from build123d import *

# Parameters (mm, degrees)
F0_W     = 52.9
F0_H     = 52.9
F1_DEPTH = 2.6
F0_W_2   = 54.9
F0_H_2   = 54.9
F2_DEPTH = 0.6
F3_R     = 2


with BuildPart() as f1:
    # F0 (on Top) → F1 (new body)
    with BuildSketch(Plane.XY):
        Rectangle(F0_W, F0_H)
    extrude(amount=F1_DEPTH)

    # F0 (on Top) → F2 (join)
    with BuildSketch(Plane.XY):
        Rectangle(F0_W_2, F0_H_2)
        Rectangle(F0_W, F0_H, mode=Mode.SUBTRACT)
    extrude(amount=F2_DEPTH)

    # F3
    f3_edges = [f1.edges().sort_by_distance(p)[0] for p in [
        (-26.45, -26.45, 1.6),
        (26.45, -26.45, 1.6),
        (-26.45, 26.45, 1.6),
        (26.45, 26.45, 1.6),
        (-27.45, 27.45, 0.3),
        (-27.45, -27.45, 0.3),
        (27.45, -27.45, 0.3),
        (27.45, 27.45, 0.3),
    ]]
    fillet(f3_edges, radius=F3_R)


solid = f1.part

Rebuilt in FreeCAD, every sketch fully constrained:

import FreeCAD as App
import Part
import Sketcher
from FreeCAD import Vector
Q = App.Units.Quantity


def edges_at(feature, points):
    """Names of the edges that pass closest to the given points."""
    edges = feature.Shape.Edges
    near = lambda p: min(range(len(edges)), key=lambda i: edges[i].distToShape(Part.Vertex(*p))[0])
    return sorted({f"Edge{near(p) + 1}" for p in points})


def add_polygon(sketch, points):
    """Adds a closed chain of lines whose ends are joined by coincident constraints."""
    first, n = sketch.GeometryCount, len(points)
    for a, b in zip(points, points[1:] + points[:1]):
        sketch.addGeometry(Part.LineSegment(App.Vector(*a, 0), App.Vector(*b, 0)), False)
    for i in range(n):
        sketch.addConstraint(Sketcher.Constraint("Coincident", first + i, 2, first + (i + 1) % n, 1))

doc = App.newDocument("Part")
body = doc.addObject("PartDesign::Body", "Body")

# Sketch on XY plane
sketch1 = body.newObject("Sketcher::SketchObject", "Sketch")
sketch1.AttachmentSupport = (doc.getObject("XY_Plane"), [""])
sketch1.MapMode = "FlatFace"
add_polygon(sketch1, [(-26.45, 26.45), (-26.45, -26.45), (26.45, -26.45), (26.45, 26.45)])  # lines 0-3
sketch1.addConstraint([
    Sketcher.Constraint("Vertical", 0),
    Sketcher.Constraint("Horizontal", 1),
    Sketcher.Constraint("Vertical", 2),
    Sketcher.Constraint("Horizontal", 3),
    Sketcher.Constraint("Symmetric", 0, 2, 2, 2, -1, 1),
    Sketcher.Constraint("Equal", 3, 0),
    Sketcher.Constraint("DistanceX", 1, 1, 1, 2, Q("52.9 mm")),
])
pad1 = body.newObject("PartDesign::Pad", "Pad")
pad1.Profile = sketch1
pad1.Length = 2.6

# Sketch on XY plane
sketch2 = body.newObject("Sketcher::SketchObject", "Sketch001")
sketch2.AttachmentSupport = (doc.getObject("XY_Plane"), [""])
sketch2.MapMode = "FlatFace"
add_polygon(sketch2, [(-27.45, 27.45), (-27.45, -27.45), (27.45, -27.45), (27.45, 27.45)])  # lines 0-3
add_polygon(sketch2, [(26.45, -26.45), (-26.45, -26.45), (-26.45, 26.45), (26.45, 26.45)])  # lines 4-7
sketch2.addConstraint([
    Sketcher.Constraint("Vertical", 0),
    Sketcher.Constraint("Horizontal", 1),
    Sketcher.Constraint("Vertical", 2),
    Sketcher.Constraint("Horizontal", 3),
    Sketcher.Constraint("Horizontal", 4),
    Sketcher.Constraint("Vertical", 5),
    Sketcher.Constraint("Horizontal", 6),
    Sketcher.Constraint("Vertical", 7),
    Sketcher.Constraint("Symmetric", 0, 2, 2, 2, -1, 1),
    Sketcher.Constraint("Symmetric", 4, 2, 6, 2, -1, 1),
    Sketcher.Constraint("Equal", 3, 0),
    Sketcher.Constraint("Equal", 6, 5),
    Sketcher.Constraint("DistanceX", 1, 1, 1, 2, Q("54.9 mm")),
    Sketcher.Constraint("DistanceX", 4, 2, 4, 1, Q("52.9 mm")),
])
pad2 = body.newObject("PartDesign::Pad", "Pad001")
pad2.Profile = sketch2
pad2.Length = 0.6
doc.recompute()

fillet = body.newObject("PartDesign::Fillet", "Fillet")
fillet.Base = (pad2, edges_at(pad2, [
    (-26.45, -26.45, 1.6),
    (26.45, -26.45, 1.6),
    (-26.45, 26.45, 1.6),
    (26.45, 26.45, 1.6),
    (-27.45, 27.45, 0.3),
    (-27.45, -27.45, 0.3),
    (27.45, -27.45, 0.3),
    (27.45, 27.45, 0.3),
]))
fillet.Radius = 2

doc.recompute()
